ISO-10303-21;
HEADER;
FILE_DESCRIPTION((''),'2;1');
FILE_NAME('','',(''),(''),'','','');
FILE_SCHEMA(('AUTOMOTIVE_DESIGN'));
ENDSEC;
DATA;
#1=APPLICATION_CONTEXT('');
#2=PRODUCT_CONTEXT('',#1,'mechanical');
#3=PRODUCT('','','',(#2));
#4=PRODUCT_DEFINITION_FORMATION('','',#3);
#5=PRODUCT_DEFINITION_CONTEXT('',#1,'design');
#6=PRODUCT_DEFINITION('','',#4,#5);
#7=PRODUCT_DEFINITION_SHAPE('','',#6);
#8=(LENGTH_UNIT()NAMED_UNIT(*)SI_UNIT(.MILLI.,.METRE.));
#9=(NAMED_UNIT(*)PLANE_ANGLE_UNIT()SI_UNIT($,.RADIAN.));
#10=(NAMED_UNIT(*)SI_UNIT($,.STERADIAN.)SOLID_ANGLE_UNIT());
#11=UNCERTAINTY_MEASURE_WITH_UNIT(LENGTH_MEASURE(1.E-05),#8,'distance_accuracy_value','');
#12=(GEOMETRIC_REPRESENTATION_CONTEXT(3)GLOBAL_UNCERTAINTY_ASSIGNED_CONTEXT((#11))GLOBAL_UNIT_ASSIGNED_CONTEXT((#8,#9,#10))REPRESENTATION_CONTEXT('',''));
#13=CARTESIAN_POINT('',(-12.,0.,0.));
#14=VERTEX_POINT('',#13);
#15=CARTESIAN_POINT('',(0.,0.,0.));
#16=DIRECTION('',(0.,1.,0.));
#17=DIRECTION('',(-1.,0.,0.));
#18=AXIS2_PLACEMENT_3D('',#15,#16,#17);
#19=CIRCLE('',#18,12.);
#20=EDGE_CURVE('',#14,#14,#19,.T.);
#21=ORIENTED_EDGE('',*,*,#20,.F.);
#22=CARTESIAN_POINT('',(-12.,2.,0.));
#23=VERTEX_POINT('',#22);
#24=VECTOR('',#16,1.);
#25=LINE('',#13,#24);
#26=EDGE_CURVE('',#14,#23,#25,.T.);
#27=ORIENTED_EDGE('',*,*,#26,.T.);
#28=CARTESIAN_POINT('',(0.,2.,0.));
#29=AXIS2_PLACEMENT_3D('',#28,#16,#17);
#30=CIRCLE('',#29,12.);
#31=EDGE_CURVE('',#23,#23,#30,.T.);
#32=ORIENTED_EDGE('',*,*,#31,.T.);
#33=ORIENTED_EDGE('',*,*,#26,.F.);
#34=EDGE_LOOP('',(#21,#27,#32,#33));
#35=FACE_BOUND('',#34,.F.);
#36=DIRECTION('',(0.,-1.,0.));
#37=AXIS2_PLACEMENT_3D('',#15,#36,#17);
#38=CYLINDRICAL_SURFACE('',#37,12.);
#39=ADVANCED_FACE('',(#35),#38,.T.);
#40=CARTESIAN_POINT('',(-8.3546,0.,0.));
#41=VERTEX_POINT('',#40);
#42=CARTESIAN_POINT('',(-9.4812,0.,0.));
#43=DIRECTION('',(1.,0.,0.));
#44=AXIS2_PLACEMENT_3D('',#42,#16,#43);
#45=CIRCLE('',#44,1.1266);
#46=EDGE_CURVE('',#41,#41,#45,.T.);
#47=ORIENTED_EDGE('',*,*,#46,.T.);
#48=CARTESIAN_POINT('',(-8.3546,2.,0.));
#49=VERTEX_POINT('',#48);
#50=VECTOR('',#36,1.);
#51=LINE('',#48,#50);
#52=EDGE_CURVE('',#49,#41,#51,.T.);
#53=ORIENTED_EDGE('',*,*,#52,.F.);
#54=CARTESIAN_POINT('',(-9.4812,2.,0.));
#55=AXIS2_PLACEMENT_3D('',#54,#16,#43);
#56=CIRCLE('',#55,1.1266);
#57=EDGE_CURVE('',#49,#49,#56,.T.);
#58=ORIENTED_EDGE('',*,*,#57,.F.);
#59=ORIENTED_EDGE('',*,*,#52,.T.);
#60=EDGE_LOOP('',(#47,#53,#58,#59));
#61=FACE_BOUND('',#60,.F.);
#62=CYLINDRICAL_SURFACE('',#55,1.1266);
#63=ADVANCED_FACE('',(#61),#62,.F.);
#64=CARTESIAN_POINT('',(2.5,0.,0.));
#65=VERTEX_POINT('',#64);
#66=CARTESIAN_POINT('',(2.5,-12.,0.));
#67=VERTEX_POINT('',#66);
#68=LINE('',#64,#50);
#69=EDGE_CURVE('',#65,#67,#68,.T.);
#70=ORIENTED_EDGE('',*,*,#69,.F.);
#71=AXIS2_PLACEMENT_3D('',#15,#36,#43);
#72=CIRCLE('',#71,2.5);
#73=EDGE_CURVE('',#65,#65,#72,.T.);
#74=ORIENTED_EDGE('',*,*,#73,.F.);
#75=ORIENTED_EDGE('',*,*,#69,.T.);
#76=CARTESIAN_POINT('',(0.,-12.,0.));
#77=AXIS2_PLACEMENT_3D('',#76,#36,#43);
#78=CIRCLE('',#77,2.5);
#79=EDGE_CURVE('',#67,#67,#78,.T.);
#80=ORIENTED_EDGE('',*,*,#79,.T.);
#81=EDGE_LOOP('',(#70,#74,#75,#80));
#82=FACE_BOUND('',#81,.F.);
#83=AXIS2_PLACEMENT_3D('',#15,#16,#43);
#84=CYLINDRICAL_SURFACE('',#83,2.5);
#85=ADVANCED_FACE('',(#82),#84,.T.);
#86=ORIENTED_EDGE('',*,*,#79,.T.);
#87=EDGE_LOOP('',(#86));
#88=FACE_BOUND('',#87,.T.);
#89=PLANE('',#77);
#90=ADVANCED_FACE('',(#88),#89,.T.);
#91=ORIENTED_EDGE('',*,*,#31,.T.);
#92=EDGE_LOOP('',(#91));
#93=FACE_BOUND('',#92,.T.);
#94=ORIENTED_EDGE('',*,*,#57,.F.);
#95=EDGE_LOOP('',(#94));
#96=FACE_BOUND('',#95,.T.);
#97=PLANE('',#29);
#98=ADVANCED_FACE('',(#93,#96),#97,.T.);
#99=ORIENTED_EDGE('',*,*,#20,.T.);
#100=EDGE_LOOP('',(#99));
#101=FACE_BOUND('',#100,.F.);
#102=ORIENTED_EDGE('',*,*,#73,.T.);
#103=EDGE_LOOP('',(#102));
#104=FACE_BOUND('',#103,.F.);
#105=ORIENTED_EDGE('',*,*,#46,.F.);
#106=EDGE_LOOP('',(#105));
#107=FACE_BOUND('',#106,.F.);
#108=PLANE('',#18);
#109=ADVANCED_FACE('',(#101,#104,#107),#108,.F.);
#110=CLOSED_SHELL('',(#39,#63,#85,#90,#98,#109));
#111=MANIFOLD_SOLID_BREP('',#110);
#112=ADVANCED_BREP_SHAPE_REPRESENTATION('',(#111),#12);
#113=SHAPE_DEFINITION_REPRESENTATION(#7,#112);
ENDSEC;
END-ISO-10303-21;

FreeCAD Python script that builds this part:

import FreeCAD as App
import Part
import Sketcher
from FreeCAD import Vector

doc = App.newDocument("Part")
body = doc.addObject("PartDesign::Body", "Body")

sketch1 = doc.addObject("Sketcher::SketchObject", "Sketch")
body.addObject(sketch1)
sketch1.AttachmentSupport = (doc.XZ_Plane, [""])
sketch1.MapMode = "FlatFace"
sketch1.addGeometry(Part.Circle(Vector(0, 0, 0), Vector(0, 0, 1), 12), False)
sketch1.addConstraint(Sketcher.Constraint("Coincident", 0, 3, -1, 1))
sketch1.addConstraint(Sketcher.Constraint("Diameter", 0, 24.0))
pad1 = doc.addObject("PartDesign::Pad", "Pad")
body.addObject(pad1)
pad1.Profile = sketch1
pad1.Length = 2
pad1.Reversed = True

sketch2 = doc.addObject("Sketcher::SketchObject", "Sketch001")
body.addObject(sketch2)
sketch2.AttachmentSupport = (doc.XZ_Plane, [""])
sketch2.MapMode = "FlatFace"
sketch2.addGeometry(Part.Circle(Vector(0, 0, 0), Vector(0, 0, 1), 2.5), False)
sketch2.addConstraint(Sketcher.Constraint("Coincident", 0, 3, -1, 1))
sketch2.addConstraint(Sketcher.Constraint("Diameter", 0, 5.0))
pad2 = doc.addObject("PartDesign::Pad", "Pad001")
body.addObject(pad2)
pad2.Profile = sketch2
pad2.Length = 12

sketch3 = doc.addObject("Sketcher::SketchObject", "Sketch002")
body.addObject(sketch3)
sketch3.AttachmentSupport = (doc.XZ_Plane, [""])
sketch3.MapMode = "FlatFace"
sketch3.AttachmentOffset = App.Placement(Vector(0, 0, -2), App.Rotation())
sketch3.addGeometry(Part.Circle(Vector(-9.4812, 0, 0), Vector(0, 0, 1), 1.1266), False)
sketch3.addConstraint(Sketcher.Constraint("PointOnObject", 0, 3, -1))
sketch3.addConstraint(Sketcher.Constraint("Diameter", 0, 2.2532))
sketch3.addConstraint(Sketcher.Constraint("DistanceX", 0, 3, -1, 1, 9.4812))
pocket1 = doc.addObject("PartDesign::Pocket", "Pocket")
body.addObject(pocket1)
pocket1.Profile = sketch3
pocket1.Type = "UpToFirst"
pocket1.Reversed = True

doc.recompute()
